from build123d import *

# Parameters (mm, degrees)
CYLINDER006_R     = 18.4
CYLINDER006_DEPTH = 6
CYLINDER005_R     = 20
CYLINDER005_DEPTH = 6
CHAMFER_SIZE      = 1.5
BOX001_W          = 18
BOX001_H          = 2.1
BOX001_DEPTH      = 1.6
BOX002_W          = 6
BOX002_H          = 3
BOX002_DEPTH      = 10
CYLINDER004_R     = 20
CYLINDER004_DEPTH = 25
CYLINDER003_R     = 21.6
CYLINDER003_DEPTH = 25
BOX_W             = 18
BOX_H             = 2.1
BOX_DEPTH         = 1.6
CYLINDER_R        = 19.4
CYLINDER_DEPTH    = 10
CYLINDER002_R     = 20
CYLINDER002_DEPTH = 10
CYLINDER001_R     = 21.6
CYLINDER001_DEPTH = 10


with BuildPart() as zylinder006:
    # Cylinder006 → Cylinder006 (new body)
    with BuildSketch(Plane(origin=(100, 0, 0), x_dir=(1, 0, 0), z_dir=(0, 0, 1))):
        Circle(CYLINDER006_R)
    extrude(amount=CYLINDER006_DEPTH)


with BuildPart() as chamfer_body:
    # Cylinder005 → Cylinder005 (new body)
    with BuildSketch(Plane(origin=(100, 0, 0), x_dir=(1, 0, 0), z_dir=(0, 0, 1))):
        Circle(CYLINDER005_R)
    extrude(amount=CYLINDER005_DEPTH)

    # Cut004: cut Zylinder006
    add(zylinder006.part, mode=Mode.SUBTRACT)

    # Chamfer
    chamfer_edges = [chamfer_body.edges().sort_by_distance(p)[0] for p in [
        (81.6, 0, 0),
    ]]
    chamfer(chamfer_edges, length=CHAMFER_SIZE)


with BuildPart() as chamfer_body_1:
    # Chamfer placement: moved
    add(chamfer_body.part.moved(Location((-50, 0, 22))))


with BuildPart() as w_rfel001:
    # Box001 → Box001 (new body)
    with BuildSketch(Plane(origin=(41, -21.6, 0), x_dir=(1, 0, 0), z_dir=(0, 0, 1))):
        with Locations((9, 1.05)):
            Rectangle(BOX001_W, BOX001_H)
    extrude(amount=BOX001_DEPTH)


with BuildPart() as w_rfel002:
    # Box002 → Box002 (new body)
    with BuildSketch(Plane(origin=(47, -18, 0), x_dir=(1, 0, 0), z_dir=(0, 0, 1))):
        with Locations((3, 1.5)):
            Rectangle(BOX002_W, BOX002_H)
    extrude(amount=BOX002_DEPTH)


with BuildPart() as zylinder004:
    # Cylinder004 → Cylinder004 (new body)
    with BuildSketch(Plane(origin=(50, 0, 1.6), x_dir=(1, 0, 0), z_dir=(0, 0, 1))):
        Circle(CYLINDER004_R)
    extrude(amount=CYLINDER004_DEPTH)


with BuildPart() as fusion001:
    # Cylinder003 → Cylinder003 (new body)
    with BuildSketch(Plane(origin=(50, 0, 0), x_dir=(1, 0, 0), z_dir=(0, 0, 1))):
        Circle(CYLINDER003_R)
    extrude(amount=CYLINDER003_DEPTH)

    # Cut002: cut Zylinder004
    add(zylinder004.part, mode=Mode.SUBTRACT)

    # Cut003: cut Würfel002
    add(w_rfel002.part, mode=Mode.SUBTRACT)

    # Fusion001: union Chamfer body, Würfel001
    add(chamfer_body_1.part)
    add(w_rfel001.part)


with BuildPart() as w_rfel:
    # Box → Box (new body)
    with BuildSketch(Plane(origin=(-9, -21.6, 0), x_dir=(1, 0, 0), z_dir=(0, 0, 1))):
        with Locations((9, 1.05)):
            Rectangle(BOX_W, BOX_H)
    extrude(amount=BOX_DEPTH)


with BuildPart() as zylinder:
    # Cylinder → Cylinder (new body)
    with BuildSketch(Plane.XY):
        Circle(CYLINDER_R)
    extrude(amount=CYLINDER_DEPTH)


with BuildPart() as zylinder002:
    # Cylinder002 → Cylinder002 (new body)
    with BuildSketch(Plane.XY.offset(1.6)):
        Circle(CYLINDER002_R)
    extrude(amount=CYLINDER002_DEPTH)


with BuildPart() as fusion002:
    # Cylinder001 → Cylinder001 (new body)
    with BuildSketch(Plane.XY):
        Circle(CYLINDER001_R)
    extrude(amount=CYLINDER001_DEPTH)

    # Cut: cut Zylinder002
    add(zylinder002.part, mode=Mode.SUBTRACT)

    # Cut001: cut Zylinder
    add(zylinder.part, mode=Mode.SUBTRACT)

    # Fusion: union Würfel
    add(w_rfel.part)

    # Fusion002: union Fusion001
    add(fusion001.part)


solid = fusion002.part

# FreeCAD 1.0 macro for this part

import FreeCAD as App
import Part
import Sketcher

V = App.Vector


def edges_at(feature, points):
    """Names of the edges that pass closest to the given points."""
    edges = feature.Shape.Edges
    near = lambda p: min(range(len(edges)), key=lambda i: edges[i].distToShape(Part.Vertex(*p))[0])
    return sorted({f"Edge{near(p) + 1}" for p in points})


def add_polygon(sketch, points):
    """Adds a closed chain of lines whose ends are joined by coincident constraints."""
    first, n = sketch.GeometryCount, len(points)
    for a, b in zip(points, points[1:] + points[:1]):
        sketch.addGeometry(Part.LineSegment(App.Vector(*a, 0), App.Vector(*b, 0)), False)
    for i in range(n):
        sketch.addConstraint(Sketcher.Constraint("Coincident", first + i, 2, first + (i + 1) % n, 1))

doc = App.newDocument("Part")
body = doc.addObject("PartDesign::Body", "Body")

sketch1 = body.newObject("Sketcher::SketchObject", "Sketch")
sketch1.AttachmentSupport = (doc.getObject("XY_Plane"), [""])
sketch1.MapMode = "FlatFace"
sketch1.addGeometry(Part.Circle(V(100, 0, 0), V(0, 0, 1), 18.4), False)
sketch1.addConstraint(Sketcher.Constraint("PointOnObject", 0, 3, -1))
sketch1.addConstraint(Sketcher.Constraint("Diameter", 0, 36.8))
sketch1.addConstraint(Sketcher.Constraint("DistanceX", -1, 1, 0, 3, 100.0))
pad1 = body.newObject("PartDesign::Pad", "Pad")
pad1.Profile = sketch1
pad1.Length = 6
body2 = doc.addObject("PartDesign::Body", "Body001")

sketch2 = body2.newObject("Sketcher::SketchObject", "Sketch001")
sketch2.AttachmentSupport = (doc.getObject("XY_Plane001"), [""])
sketch2.MapMode = "FlatFace"
sketch2.addGeometry(Part.Circle(V(100, 0, 0), V(0, 0, 1), 20), False)
sketch2.addConstraint(Sketcher.Constraint("PointOnObject", 0, 3, -1))
sketch2.addConstraint(Sketcher.Constraint("Diameter", 0, 40.0))
sketch2.addConstraint(Sketcher.Constraint("DistanceX", -1, 1, 0, 3, 100.0))
pad2 = body2.newObject("PartDesign::Pad", "Pad001")
pad2.Profile = sketch2
pad2.Length = 6
doc.recompute()

boolean = body2.newObject("PartDesign::Boolean", "Boolean")
boolean.Type = "Cut"
boolean.addObjects([body])
doc.recompute()

chamfer = body2.newObject("PartDesign::Chamfer", "Chamfer")
chamfer.Base = (boolean, edges_at(boolean, [(81.6, 0, 0)]))
chamfer.Size = 1.5
body3 = doc.addObject("PartDesign::Body", "Body002")
doc.recompute()

body2.Placement = App.Placement(V(-50, 0, 22), App.Rotation(V(0, 0, 1), 0))
boolean2 = body3.newObject("PartDesign::Boolean", "Boolean001")
boolean2.Type = "Fuse"
boolean2.addObjects([body2])
body4 = doc.addObject("PartDesign::Body", "Body003")

sketch3 = body4.newObject("Sketcher::SketchObject", "Sketch002")
sketch3.AttachmentSupport = (doc.getObject("XY_Plane003"), [""])
sketch3.MapMode = "FlatFace"
add_polygon(sketch3, [(41, -19.5), (41, -21.6), (59, -21.6), (59, -19.5)])
sketch3.addConstraint(Sketcher.Constraint("Vertical", 0))
sketch3.addConstraint(Sketcher.Constraint("Horizontal", 1))
sketch3.addConstraint(Sketcher.Constraint("Vertical", 2))
sketch3.addConstraint(Sketcher.Constraint("Horizontal", 3))
sketch3.addConstraint(Sketcher.Constraint("DistanceX", 1, 1, 1, 2, 18.0))
sketch3.addConstraint(Sketcher.Constraint("DistanceY", 0, 2, 0, 1, 2.1))
sketch3.addConstraint(Sketcher.Constraint("DistanceX", -1, 1, 0, 2, 41.0))
sketch3.addConstraint(Sketcher.Constraint("DistanceY", 0, 2, -1, 1, 21.6))
pad3 = body4.newObject("PartDesign::Pad", "Pad002")
pad3.Profile = sketch3
pad3.Length = 1.6
body5 = doc.addObject("PartDesign::Body", "Body004")

sketch4 = body5.newObject("Sketcher::SketchObject", "Sketch003")
sketch4.AttachmentSupport = (doc.getObject("XY_Plane004"), [""])
sketch4.MapMode = "FlatFace"
add_polygon(sketch4, [(47, -15), (47, -18), (53, -18), (53, -15)])
sketch4.addConstraint(Sketcher.Constraint("Vertical", 0))
sketch4.addConstraint(Sketcher.Constraint("Horizontal", 1))
sketch4.addConstraint(Sketcher.Constraint("Vertical", 2))
sketch4.addConstraint(Sketcher.Constraint("Horizontal", 3))
sketch4.addConstraint(Sketcher.Constraint("DistanceX", 1, 1, 1, 2, 6.0))
sketch4.addConstraint(Sketcher.Constraint("DistanceY", 0, 2, 0, 1, 3.0))
sketch4.addConstraint(Sketcher.Constraint("DistanceX", -1, 1, 0, 2, 47.0))
sketch4.addConstraint(Sketcher.Constraint("DistanceY", 0, 2, -1, 1, 18.0))
pad4 = body5.newObject("PartDesign::Pad", "Pad003")
pad4.Profile = sketch4
pad4.Length = 10
body6 = doc.addObject("PartDesign::Body", "Body005")

sketch5 = body6.newObject("Sketcher::SketchObject", "Sketch004")
sketch5.AttachmentSupport = (doc.getObject("XY_Plane005"), [""])
sketch5.MapMode = "FlatFace"
sketch5.AttachmentOffset = App.Placement(V(0, 0, 1.6), App.Rotation())
sketch5.addGeometry(Part.Circle(V(50, 0, 0), V(0, 0, 1), 20), False)
sketch5.addConstraint(Sketcher.Constraint("PointOnObject", 0, 3, -1))
sketch5.addConstraint(Sketcher.Constraint("Diameter", 0, 40.0))
sketch5.addConstraint(Sketcher.Constraint("DistanceX", -1, 1, 0, 3, 50.0))
pad5 = body6.newObject("PartDesign::Pad", "Pad004")
pad5.Profile = sketch5
pad5.Length = 25
body7 = doc.addObject("PartDesign::Body", "Body006")

sketch6 = body7.newObject("Sketcher::SketchObject", "Sketch005")
sketch6.AttachmentSupport = (doc.getObject("XY_Plane006"), [""])
sketch6.MapMode = "FlatFace"
sketch6.addGeometry(Part.Circle(V(50, 0, 0), V(0, 0, 1), 21.6), False)
sketch6.addConstraint(Sketcher.Constraint("PointOnObject", 0, 3, -1))
sketch6.addConstraint(Sketcher.Constraint("Diameter", 0, 43.2))
sketch6.addConstraint(Sketcher.Constraint("DistanceX", -1, 1, 0, 3, 50.0))
pad6 = body7.newObject("PartDesign::Pad", "Pad005")
pad6.Profile = sketch6
pad6.Length = 25
doc.recompute()

boolean3 = body7.newObject("PartDesign::Boolean", "Boolean002")
boolean3.Type = "Cut"
boolean3.addObjects([body6])
doc.recompute()

boolean4 = body7.newObject("PartDesign::Boolean", "Boolean003")
boolean4.Type = "Cut"
boolean4.addObjects([body5])
doc.recompute()

boolean5 = body7.newObject("PartDesign::Boolean", "Boolean004")
boolean5.Type = "Fuse"
boolean5.addObjects([body3])
doc.recompute()

boolean6 = body7.newObject("PartDesign::Boolean", "Boolean005")
boolean6.Type = "Fuse"
boolean6.addObjects([body4])
body8 = doc.addObject("PartDesign::Body", "Body007")

sketch7 = body8.newObject("Sketcher::SketchObject", "Sketch006")
sketch7.AttachmentSupport = (doc.getObject("XY_Plane007"), [""])
sketch7.MapMode = "FlatFace"
add_polygon(sketch7, [(-9, -19.5), (-9, -21.6), (9, -21.6), (9, -19.5)])
sketch7.addConstraint(Sketcher.Constraint("Vertical", 0))
sketch7.addConstraint(Sketcher.Constraint("Horizontal", 1))
sketch7.addConstraint(Sketcher.Constraint("Vertical", 2))
sketch7.addConstraint(Sketcher.Constraint("Horizontal", 3))
sketch7.addConstraint(Sketcher.Constraint("DistanceX", 1, 1, 1, 2, 18.0))
sketch7.addConstraint(Sketcher.Constraint("DistanceY", 0, 2, 0, 1, 2.1))
sketch7.addConstraint(Sketcher.Constraint("DistanceX", 0, 2, -1, 1, 9.0))
sketch7.addConstraint(Sketcher.Constraint("DistanceY", 0, 2, -1, 1, 21.6))
pad7 = body8.newObject("PartDesign::Pad", "Pad006")
pad7.Profile = sketch7
pad7.Length = 1.6
body9 = doc.addObject("PartDesign::Body", "Body008")

sketch8 = body9.newObject("Sketcher::SketchObject", "Sketch007")
sketch8.AttachmentSupport = (doc.getObject("XY_Plane008"), [""])
sketch8.MapMode = "FlatFace"
sketch8.addGeometry(Part.Circle(V(0, 0, 0), V(0, 0, 1), 19.4), False)
sketch8.addConstraint(Sketcher.Constraint("Coincident", 0, 3, -1, 1))
sketch8.addConstraint(Sketcher.Constraint("Diameter", 0, 38.8))
pad8 = body9.newObject("PartDesign::Pad", "Pad007")
pad8.Profile = sketch8
pad8.Length = 10
body10 = doc.addObject("PartDesign::Body", "Body009")

sketch9 = body10.newObject("Sketcher::SketchObject", "Sketch008")
sketch9.AttachmentSupport = (doc.getObject("XY_Plane009"), [""])
sketch9.MapMode = "FlatFace"
sketch9.AttachmentOffset = App.Placement(V(0, 0, 1.6), App.Rotation())
sketch9.addGeometry(Part.Circle(V(0, 0, 0), V(0, 0, 1), 20), False)
sketch9.addConstraint(Sketcher.Constraint("Coincident", 0, 3, -1, 1))
sketch9.addConstraint(Sketcher.Constraint("Diameter", 0, 40.0))
pad9 = body10.newObject("PartDesign::Pad", "Pad008")
pad9.Profile = sketch9
pad9.Length = 10
body11 = doc.addObject("PartDesign::Body", "Body010")
body11.AllowCompound = True

sketch10 = body11.newObject("Sketcher::SketchObject", "Sketch009")
sketch10.AttachmentSupport = (doc.getObject("XY_Plane010"), [""])
sketch10.MapMode = "FlatFace"
sketch10.addGeometry(Part.Circle(V(0, 0, 0), V(0, 0, 1), 21.6), False)
sketch10.addConstraint(Sketcher.Constraint("Coincident", 0, 3, -1, 1))
sketch10.addConstraint(Sketcher.Constraint("Diameter", 0, 43.2))
pad10 = body11.newObject("PartDesign::Pad", "Pad009")
pad10.Profile = sketch10
pad10.Length = 10
doc.recompute()

boolean7 = body11.newObject("PartDesign::Boolean", "Boolean006")
boolean7.Type = "Cut"
boolean7.addObjects([body10])
doc.recompute()

boolean8 = body11.newObject("PartDesign::Boolean", "Boolean007")
boolean8.Type = "Cut"
boolean8.addObjects([body9])
doc.recompute()

boolean9 = body11.newObject("PartDesign::Boolean", "Boolean008")
boolean9.Type = "Fuse"
boolean9.addObjects([body8])
doc.recompute()

boolean10 = body11.newObject("PartDesign::Boolean", "Boolean009")
boolean10.Type = "Fuse"
boolean10.addObjects([body7])

doc.recompute()
